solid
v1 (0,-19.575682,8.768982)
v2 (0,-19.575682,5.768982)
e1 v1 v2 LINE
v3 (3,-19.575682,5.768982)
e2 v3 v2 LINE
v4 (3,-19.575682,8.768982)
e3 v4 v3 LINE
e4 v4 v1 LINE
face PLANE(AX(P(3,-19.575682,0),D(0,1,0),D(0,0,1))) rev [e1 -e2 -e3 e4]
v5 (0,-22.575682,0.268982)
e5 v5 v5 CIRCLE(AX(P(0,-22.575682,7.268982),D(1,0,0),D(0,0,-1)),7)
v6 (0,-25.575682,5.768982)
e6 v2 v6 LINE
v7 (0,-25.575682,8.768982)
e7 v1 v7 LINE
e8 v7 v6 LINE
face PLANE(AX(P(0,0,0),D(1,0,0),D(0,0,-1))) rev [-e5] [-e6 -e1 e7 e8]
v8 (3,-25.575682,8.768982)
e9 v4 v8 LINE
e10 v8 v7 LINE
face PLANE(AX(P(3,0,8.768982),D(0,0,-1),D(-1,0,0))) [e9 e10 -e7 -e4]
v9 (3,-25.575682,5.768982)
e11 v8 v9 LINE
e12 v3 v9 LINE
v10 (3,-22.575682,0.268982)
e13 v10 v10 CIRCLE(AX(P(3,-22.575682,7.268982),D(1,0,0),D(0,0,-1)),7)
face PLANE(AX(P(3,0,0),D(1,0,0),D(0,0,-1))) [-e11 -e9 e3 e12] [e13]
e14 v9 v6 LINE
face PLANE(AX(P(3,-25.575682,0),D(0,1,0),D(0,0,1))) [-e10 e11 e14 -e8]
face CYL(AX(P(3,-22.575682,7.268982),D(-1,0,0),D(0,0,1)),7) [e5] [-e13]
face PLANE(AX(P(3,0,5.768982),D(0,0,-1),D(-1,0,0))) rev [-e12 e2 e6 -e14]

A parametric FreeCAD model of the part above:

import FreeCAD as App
import Part
import Sketcher

doc = App.newDocument("Part")
body = doc.addObject("PartDesign::Body", "Body")

# Sketch on YZ plane
sketch1 = body.newObject("Sketcher::SketchObject", "Sketch")
sketch1.AttachmentSupport = (doc.getObject("YZ_Plane"), [""])
sketch1.MapMode = "FlatFace"
sketch1.addGeometry([
    Part.Circle(App.Vector(-22.6, 7.3, 0), App.Vector(0, 0, 1), 7),  # 0
    Part.LineSegment(App.Vector(-25.6, 5.8, 0), App.Vector(-25.6, 8.8, 0)),  # 1
    Part.LineSegment(App.Vector(-25.6, 8.8, 0), App.Vector(-19.6, 8.8, 0)),  # 2
    Part.LineSegment(App.Vector(-19.6, 8.8, 0), App.Vector(-19.6, 5.8, 0)),  # 3
    Part.LineSegment(App.Vector(-19.6, 5.8, 0), App.Vector(-25.6, 5.8, 0)),  # 4
], False)
sketch1.addConstraint([
    Sketcher.Constraint("Coincident", 1, 2, 2, 1),
    Sketcher.Constraint("Coincident", 2, 2, 3, 1),
    Sketcher.Constraint("Coincident", 3, 2, 4, 1),
    Sketcher.Constraint("Coincident", 4, 2, 1, 1),
    Sketcher.Constraint("Vertical", 1),
    Sketcher.Constraint("Horizontal", 2),
    Sketcher.Constraint("Vertical", 3),
    Sketcher.Constraint("Horizontal", 4),
    Sketcher.Constraint("Diameter", 0, 14.0),
    Sketcher.Constraint("DistanceX", 2, 1, 2, 2, 6.0),
    Sketcher.Constraint("DistanceY", 1, 1, 1, 2, 3.0),
    Sketcher.Constraint("DistanceX", 1, 2, 0, 3, 3.0),
    Sketcher.Constraint("DistanceY", 0, 3, 1, 2, 1.5),
    Sketcher.Constraint("DistanceY", -1, 1, 0, 3, 7.268982),
    Sketcher.Constraint("DistanceX", 0, 3, -1, 1, 22.575682),
])
pad1 = body.newObject("PartDesign::Pad", "Pad")
pad1.Profile = sketch1
pad1.Length = 3

doc.recompute()
